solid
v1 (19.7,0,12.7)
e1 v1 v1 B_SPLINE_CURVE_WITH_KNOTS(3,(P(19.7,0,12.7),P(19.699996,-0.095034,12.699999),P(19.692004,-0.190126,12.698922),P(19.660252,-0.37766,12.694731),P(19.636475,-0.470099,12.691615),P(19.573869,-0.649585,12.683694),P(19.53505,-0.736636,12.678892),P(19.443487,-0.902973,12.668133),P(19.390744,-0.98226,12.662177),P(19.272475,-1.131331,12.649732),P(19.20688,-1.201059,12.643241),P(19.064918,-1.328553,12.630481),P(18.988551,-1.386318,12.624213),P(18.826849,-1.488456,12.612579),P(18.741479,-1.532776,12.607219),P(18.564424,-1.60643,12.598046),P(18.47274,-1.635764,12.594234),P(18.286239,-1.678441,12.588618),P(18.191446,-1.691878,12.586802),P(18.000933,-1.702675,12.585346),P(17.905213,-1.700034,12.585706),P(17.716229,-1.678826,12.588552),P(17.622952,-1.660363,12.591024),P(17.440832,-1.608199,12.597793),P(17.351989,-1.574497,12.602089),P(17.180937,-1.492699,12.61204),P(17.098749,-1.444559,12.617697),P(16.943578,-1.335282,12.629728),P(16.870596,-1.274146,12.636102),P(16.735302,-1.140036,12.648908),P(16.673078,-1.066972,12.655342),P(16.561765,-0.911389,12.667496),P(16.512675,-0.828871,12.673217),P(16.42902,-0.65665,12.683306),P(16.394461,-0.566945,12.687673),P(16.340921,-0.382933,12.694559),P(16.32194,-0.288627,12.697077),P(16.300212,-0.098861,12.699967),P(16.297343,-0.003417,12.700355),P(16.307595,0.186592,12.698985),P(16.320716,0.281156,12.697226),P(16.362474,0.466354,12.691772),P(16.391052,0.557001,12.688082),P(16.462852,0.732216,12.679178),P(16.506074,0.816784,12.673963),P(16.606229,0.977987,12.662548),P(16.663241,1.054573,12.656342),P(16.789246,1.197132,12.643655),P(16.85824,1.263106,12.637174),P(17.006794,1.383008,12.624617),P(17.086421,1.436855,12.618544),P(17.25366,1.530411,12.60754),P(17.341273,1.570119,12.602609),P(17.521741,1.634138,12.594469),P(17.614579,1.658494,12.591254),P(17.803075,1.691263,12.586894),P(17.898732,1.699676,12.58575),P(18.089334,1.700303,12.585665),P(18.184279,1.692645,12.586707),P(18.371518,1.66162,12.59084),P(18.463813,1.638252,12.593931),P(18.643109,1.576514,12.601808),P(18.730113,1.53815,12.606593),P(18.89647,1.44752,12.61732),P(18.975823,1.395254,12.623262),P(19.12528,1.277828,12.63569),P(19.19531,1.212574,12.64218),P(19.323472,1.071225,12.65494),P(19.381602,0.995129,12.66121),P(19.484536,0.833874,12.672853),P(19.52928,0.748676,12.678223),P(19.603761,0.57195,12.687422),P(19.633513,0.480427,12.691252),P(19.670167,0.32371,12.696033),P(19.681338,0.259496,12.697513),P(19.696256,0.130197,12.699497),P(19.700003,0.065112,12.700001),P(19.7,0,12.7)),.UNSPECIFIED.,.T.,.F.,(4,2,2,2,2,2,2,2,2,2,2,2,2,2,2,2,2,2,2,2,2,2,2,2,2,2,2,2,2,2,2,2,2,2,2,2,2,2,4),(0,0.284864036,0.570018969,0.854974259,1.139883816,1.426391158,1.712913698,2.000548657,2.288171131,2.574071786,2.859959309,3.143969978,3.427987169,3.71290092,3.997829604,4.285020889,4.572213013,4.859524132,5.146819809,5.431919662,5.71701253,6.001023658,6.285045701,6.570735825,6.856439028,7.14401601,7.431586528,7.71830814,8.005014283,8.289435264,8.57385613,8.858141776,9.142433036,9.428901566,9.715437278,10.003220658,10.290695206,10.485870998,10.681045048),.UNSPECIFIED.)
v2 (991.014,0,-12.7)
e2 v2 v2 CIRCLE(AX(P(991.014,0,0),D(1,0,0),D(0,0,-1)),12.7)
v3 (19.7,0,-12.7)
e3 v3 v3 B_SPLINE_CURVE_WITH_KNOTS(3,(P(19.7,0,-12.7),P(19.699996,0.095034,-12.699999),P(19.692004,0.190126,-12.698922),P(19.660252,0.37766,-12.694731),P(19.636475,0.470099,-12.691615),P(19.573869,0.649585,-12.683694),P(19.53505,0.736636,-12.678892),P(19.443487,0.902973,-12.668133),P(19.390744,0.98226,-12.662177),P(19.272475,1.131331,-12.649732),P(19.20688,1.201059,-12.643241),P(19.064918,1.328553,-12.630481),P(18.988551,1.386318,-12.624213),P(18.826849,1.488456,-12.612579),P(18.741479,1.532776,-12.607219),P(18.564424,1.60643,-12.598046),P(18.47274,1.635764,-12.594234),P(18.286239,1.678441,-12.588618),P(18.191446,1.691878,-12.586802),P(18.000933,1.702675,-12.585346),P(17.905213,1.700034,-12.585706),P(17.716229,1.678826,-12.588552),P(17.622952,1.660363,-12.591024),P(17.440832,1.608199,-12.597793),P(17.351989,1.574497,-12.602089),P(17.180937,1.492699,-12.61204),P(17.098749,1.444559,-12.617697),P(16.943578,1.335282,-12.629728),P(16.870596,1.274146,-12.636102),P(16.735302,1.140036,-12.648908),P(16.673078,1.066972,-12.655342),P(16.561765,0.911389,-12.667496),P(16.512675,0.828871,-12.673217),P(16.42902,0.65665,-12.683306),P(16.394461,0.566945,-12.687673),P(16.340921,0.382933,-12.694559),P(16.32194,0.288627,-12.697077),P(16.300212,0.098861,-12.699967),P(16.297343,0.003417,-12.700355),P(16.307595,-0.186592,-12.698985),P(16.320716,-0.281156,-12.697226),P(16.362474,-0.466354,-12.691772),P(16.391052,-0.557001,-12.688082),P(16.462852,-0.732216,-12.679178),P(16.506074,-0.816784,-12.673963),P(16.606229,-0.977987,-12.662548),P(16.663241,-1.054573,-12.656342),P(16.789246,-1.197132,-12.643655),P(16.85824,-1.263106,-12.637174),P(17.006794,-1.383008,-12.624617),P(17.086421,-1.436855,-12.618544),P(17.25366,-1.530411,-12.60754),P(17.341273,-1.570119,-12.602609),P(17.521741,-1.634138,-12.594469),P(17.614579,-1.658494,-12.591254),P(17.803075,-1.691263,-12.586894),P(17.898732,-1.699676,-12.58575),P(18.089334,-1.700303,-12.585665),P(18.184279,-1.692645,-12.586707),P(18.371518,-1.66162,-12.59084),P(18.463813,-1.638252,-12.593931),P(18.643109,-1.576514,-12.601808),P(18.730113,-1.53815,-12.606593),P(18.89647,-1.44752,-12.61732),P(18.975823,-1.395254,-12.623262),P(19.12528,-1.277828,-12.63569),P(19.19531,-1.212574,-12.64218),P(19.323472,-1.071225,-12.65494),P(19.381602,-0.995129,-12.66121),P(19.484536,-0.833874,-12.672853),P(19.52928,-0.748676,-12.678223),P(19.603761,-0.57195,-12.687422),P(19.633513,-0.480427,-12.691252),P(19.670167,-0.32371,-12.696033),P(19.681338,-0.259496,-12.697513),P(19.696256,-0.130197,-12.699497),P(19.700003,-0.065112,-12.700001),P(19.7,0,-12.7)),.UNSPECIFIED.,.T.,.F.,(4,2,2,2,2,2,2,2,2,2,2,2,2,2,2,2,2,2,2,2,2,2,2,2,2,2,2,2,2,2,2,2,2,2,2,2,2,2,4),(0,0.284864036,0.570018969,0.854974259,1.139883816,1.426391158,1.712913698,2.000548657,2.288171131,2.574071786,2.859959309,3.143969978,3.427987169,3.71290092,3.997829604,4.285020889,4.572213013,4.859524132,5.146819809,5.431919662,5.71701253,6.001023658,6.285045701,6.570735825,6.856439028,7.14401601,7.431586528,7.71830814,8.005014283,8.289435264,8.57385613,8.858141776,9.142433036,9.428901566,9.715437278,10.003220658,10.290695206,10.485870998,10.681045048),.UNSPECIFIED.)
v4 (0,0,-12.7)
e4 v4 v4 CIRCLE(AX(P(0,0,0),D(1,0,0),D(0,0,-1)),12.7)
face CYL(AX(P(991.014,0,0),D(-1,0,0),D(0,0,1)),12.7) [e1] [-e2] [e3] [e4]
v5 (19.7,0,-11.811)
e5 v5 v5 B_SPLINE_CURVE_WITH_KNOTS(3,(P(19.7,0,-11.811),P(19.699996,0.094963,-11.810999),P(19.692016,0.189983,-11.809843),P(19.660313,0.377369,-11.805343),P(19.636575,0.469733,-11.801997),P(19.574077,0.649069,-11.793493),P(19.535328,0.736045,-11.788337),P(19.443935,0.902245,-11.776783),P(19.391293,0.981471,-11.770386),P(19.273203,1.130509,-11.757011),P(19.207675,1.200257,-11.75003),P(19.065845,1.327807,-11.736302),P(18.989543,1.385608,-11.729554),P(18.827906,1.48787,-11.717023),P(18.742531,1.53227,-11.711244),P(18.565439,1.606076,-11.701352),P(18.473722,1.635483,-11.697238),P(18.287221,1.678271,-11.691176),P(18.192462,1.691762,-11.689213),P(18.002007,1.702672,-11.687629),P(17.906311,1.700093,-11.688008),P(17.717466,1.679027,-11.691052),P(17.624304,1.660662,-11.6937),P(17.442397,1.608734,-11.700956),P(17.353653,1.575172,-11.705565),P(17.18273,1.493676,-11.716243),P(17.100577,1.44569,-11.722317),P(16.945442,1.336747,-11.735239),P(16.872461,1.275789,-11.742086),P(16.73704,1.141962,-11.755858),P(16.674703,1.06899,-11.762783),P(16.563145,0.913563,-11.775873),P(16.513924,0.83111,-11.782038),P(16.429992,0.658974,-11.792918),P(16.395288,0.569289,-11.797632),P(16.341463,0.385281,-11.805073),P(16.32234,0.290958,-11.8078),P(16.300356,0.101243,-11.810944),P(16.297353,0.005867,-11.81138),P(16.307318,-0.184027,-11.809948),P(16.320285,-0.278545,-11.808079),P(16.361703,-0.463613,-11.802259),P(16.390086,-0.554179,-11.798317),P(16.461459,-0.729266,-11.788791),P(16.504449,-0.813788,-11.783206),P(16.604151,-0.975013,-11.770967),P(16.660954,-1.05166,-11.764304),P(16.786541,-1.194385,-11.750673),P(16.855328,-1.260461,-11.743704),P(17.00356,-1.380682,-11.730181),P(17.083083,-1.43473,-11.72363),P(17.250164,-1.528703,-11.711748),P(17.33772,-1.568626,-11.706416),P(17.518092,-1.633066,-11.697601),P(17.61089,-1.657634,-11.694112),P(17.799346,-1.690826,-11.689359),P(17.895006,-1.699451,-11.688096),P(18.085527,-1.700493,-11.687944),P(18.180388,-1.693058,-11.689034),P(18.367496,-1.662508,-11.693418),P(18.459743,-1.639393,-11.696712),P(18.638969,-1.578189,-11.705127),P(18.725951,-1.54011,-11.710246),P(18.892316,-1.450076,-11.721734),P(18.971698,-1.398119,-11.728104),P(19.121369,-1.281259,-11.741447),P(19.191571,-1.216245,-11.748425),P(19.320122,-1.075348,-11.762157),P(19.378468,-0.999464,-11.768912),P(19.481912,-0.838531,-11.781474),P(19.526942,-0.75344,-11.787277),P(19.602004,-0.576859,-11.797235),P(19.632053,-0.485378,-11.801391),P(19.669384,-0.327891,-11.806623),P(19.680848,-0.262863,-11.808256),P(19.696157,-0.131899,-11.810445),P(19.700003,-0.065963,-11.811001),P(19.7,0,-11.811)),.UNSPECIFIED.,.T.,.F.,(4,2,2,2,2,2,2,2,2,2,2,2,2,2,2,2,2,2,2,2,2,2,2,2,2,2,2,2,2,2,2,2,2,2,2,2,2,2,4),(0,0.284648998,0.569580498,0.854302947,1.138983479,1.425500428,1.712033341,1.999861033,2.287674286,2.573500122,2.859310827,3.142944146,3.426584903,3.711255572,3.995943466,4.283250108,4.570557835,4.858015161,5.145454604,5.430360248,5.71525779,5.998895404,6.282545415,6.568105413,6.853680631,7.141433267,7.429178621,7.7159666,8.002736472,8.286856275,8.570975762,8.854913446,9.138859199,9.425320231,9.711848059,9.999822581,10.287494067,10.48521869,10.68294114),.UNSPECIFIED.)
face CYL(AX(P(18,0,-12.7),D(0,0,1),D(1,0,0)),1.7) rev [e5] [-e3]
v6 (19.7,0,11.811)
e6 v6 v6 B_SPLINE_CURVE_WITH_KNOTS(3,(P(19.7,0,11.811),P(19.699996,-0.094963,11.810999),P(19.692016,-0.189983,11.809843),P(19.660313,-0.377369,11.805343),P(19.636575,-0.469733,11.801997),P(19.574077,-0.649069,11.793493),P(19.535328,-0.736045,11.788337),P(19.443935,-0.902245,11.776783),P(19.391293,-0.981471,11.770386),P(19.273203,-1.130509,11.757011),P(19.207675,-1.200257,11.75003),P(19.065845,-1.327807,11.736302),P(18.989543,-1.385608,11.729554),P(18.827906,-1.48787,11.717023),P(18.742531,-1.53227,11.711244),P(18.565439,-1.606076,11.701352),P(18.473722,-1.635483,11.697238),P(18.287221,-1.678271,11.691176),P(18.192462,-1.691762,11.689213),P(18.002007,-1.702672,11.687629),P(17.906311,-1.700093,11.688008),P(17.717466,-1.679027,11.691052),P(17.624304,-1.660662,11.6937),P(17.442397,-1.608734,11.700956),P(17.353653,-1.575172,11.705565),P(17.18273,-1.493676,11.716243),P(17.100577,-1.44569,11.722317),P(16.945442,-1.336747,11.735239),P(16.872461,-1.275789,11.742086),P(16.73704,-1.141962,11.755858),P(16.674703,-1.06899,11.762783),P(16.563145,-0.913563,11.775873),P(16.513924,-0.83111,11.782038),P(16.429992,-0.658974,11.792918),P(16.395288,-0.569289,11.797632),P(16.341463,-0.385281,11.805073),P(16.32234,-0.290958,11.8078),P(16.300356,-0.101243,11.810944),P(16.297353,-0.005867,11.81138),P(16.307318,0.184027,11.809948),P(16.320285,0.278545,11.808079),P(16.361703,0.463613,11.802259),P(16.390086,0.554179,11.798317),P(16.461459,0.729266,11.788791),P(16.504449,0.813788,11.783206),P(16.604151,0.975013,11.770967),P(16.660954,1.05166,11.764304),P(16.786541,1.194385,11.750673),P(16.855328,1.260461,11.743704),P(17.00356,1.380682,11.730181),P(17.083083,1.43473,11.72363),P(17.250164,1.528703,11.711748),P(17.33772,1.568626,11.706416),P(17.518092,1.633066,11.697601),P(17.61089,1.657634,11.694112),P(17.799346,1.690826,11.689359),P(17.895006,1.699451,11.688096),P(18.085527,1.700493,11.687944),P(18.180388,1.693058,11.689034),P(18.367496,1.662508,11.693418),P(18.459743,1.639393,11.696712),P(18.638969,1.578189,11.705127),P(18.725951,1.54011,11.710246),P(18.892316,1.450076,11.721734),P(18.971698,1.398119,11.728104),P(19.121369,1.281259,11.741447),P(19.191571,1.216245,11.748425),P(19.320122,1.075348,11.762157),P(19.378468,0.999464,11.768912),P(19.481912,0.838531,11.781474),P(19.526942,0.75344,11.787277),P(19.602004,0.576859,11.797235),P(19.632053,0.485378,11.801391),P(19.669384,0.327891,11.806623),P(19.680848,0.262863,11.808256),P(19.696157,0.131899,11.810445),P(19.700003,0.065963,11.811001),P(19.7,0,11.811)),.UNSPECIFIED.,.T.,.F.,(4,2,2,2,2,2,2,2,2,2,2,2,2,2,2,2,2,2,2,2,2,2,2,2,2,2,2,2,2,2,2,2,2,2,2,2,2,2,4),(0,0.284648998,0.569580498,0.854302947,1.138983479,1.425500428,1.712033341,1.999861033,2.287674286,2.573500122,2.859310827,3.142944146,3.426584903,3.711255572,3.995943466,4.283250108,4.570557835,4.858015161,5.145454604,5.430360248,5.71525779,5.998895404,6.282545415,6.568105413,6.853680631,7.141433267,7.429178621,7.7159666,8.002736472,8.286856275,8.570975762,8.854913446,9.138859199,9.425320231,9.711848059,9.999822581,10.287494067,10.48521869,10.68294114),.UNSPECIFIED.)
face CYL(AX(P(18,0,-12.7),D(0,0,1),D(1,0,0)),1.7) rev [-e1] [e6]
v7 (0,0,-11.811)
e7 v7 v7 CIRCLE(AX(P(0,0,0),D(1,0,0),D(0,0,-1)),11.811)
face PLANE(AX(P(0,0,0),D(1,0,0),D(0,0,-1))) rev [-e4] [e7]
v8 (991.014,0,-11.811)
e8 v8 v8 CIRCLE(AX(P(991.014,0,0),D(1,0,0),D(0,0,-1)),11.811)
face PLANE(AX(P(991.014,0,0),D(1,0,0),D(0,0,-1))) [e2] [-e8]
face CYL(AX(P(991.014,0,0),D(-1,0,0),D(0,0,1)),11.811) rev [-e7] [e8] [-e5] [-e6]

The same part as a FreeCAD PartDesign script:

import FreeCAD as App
import Part
import Sketcher
from FreeCAD import Vector
Q = App.Units.Quantity

doc = App.newDocument("Part")
params = doc.addObject("Spreadsheet::Sheet", "Params")
for row, (alias, value) in enumerate([
    ("sketch1_diameter", "1 in"),
    ("sketch1_diameter2", "0.93 in"),
    ("pad1_length", "991.014 mm"),
], start=1):
    params.set(f"A{row}", alias)
    params.set(f"B{row}", "=" + value)
    params.setAlias(f"B{row}", alias)

body = doc.addObject("PartDesign::Body", "Body")

sketch1 = body.newObject("Sketcher::SketchObject", "Sketch")
sketch1.AttachmentSupport = (doc.getObject("YZ_Plane"), [""])
sketch1.MapMode = "FlatFace"
sketch1.addGeometry([
    Part.Circle(Vector(0, 0, 0), Vector(0, 0, 1), 13),
    Part.Circle(Vector(0, 0, 0), Vector(0, 0, 1), 12),
], False)
sketch1.addConstraint([
    Sketcher.Constraint("Coincident", 0, 3, -1, 1),
    Sketcher.Constraint("Coincident", 1, 3, -1, 1),
    Sketcher.Constraint("Diameter", 0, Q("1 in")),
    Sketcher.Constraint("Diameter", 1, Q("0.93 in")),
])
sketch1.setExpression("Constraints[2]", "Params.sketch1_diameter")
sketch1.setExpression("Constraints[3]", "Params.sketch1_diameter2")
pad1 = body.newObject("PartDesign::Pad", "Pad")
pad1.Profile = sketch1
pad1.setExpression("Length", "Params.pad1_length")

sketch2 = body.newObject("Sketcher::SketchObject", "Sketch001")
sketch2.AttachmentSupport = (doc.getObject("XY_Plane"), [""])
sketch2.MapMode = "FlatFace"
sketch2.addGeometry(Part.Circle(Vector(18, 0, 0), Vector(0, 0, 1), 1.7), False)
sketch2.addConstraint([
    Sketcher.Constraint("PointOnObject", 0, 3, -1),
    Sketcher.Constraint("Diameter", 0, 3.4),
    Sketcher.Constraint("DistanceX", -1, 1, 0, 3, 18.0),
])
pocket1 = body.newObject("PartDesign::Pocket", "Pocket")
pocket1.Profile = sketch2
pocket1.Type = "ThroughAll"
pocket1.Midplane = True

doc.recompute()
